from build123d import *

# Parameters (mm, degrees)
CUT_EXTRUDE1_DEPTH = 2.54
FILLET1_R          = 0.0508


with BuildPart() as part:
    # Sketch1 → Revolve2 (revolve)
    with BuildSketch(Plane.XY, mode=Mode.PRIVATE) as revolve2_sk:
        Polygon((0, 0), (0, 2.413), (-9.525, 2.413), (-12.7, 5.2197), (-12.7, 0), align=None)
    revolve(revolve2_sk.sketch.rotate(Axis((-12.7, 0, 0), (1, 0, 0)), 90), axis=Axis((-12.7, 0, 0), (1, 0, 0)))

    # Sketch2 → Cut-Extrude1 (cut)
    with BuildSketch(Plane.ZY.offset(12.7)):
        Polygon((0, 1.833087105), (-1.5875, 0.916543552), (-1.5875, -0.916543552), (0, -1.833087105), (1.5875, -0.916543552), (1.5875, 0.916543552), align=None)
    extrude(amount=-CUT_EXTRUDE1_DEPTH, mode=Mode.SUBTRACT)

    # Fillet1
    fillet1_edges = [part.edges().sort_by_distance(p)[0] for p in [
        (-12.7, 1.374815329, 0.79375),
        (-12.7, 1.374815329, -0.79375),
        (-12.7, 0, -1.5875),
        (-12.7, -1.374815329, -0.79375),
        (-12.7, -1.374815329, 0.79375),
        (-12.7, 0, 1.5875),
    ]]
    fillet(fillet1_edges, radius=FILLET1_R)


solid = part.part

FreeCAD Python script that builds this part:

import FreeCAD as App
import Part
import Sketcher
from FreeCAD import Vector
Q = App.Units.Quantity


def edges_at(feature, points):
    """Names of the edges that pass closest to the given points."""
    edges = feature.Shape.Edges
    near = lambda p: min(range(len(edges)), key=lambda i: edges[i].distToShape(Part.Vertex(*p))[0])
    return sorted({f"Edge{near(p) + 1}" for p in points})

doc = App.newDocument("Part")
params = doc.addObject("Spreadsheet::Sheet", "Params")
for row, (alias, value) in enumerate([
    ("sketch1_width", "0.5 in"),
    ("sketch1_width2", "0.375 in"),
    ("sketch1_height", "0.095 in"),
    ("revolution_angle", "360 deg"),
    ("pocket1_length", "0.1 in"),
    ("fillet_radius", "0.002 in"),
], start=1):
    params.set(f"A{row}", alias)
    params.set(f"B{row}", "=" + value)
    params.setAlias(f"B{row}", alias)

body = doc.addObject("PartDesign::Body", "Body")

# Sketch on XY plane
sketch1 = body.newObject("Sketcher::SketchObject", "Sketch")
sketch1.AttachmentSupport = (doc.getObject("XY_Plane"), [""])
sketch1.MapMode = "FlatFace"
sketch1.addGeometry([
    Part.LineSegment(Vector(0, 0, 0), Vector(0, 2.4, 0)),  # 0
    Part.LineSegment(Vector(0, 2.4, 0), Vector(-9.5, 2.4, 0)),  # 1
    Part.LineSegment(Vector(-9.5, 2.4, 0), Vector(-12.7, 5.2, 0)),  # 2
    Part.LineSegment(Vector(-12.7, 5.2, 0), Vector(-12.7, 0, 0)),  # 3
    Part.LineSegment(Vector(-12.7, 0, 0), Vector(0, 0, 0)),  # 4
], False)
sketch1.addConstraint([
    Sketcher.Constraint("Coincident", 0, 2, 1, 1),
    Sketcher.Constraint("Coincident", 1, 2, 2, 1),
    Sketcher.Constraint("Coincident", 2, 2, 3, 1),
    Sketcher.Constraint("Coincident", 3, 2, 4, 1),
    Sketcher.Constraint("Coincident", 4, 2, 0, 1),
    Sketcher.Constraint("Vertical", 0),
    Sketcher.Constraint("Horizontal", 1),
    Sketcher.Constraint("Vertical", 3),
    Sketcher.Constraint("Horizontal", 4),
    Sketcher.Constraint("Coincident", 4, 2, -1, 1),
    Sketcher.Constraint("DistanceX", 4, 1, 4, 2, Q("0.5 in")),
    Sketcher.Constraint("DistanceX", 1, 2, 1, 1, Q("0.375 in")),
    Sketcher.Constraint("DistanceY", 0, 1, 0, 2, Q("0.095 in")),
    Sketcher.Constraint("DistanceY", 3, 2, 3, 1, Q("0.2055 in")),
])
sketch1.setExpression("Constraints[10]", "Params.sketch1_width")
sketch1.setExpression("Constraints[11]", "Params.sketch1_width2")
sketch1.setExpression("Constraints[12]", "Params.sketch1_height")
revolution = body.newObject("PartDesign::Revolution", "Revolution")
revolution.Profile = sketch1
revolution.ReferenceAxis = (sketch1, ["H_Axis"])
revolution.setExpression("Angle", "Params.revolution_angle")

# Sketch on YZ plane
sketch2 = body.newObject("Sketcher::SketchObject", "Sketch001")
sketch2.AttachmentSupport = (doc.getObject("YZ_Plane"), [""])
sketch2.MapMode = "FlatFace"
sketch2.AttachmentOffset = App.Placement(Vector(0, 0, -0.5 * 25.4), App.Rotation())
sketch2.addGeometry([
    Part.LineSegment(Vector(1.8, 0, 0), Vector(0.9, -1.6, 0)),  # 0
    Part.LineSegment(Vector(0.9, -1.6, 0), Vector(-0.9, -1.6, 0)),  # 1
    Part.LineSegment(Vector(-0.9, -1.6, 0), Vector(-1.8, 0, 0)),  # 2
    Part.LineSegment(Vector(-1.8, 0, 0), Vector(-0.9, 1.6, 0)),  # 3
    Part.LineSegment(Vector(-0.9, 1.6, 0), Vector(0.9, 1.6, 0)),  # 4
    Part.LineSegment(Vector(0.9, 1.6, 0), Vector(1.8, 0, 0)),  # 5
], False)
sketch2.addConstraint([
    Sketcher.Constraint("Coincident", 0, 2, 1, 1),
    Sketcher.Constraint("Coincident", 1, 2, 2, 1),
    Sketcher.Constraint("Coincident", 2, 2, 3, 1),
    Sketcher.Constraint("Coincident", 3, 2, 4, 1),
    Sketcher.Constraint("Coincident", 4, 2, 5, 1),
    Sketcher.Constraint("Coincident", 5, 2, 0, 1),
    Sketcher.Constraint("Horizontal", 1),
    Sketcher.Constraint("Horizontal", 4),
    Sketcher.Constraint("Symmetric", 0, 2, 3, 2, -1, 1),
    Sketcher.Constraint("Symmetric", 2, 2, 5, 2, -1, 1),
    Sketcher.Constraint("PointOnObject", 2, 2, -1),
    Sketcher.Constraint("Parallel", 2, 5),
    Sketcher.Constraint("Vertical", 1, 2, 3, 2),
    Sketcher.Constraint("Angle", 0, Q("-120 deg")),
    Sketcher.Constraint("DistanceY", 0, 2, -1, 1, Q("0.0625 in")),
    Sketcher.Constraint("DistanceX", 1, 2, 1, 1, Q("1.833087 mm")),
])
pocket1 = body.newObject("PartDesign::Pocket", "Pocket")
pocket1.Profile = sketch2
pocket1.setExpression("Length", "Params.pocket1_length")
pocket1.Reversed = True
doc.recompute()

fillet = body.newObject("PartDesign::Fillet", "Fillet")
fillet.Base = (pocket1, edges_at(pocket1, [
    (-12.7, 1.375, 0.794),
    (-12.7, 1.375, -0.794),
    (-12.7, 0, -1.587),
    (-12.7, -1.375, -0.794),
    (-12.7, -1.375, 0.794),
    (-12.7, 0, 1.587),
]))
fillet.setExpression("Radius", "Params.fillet_radius")

doc.recompute()
